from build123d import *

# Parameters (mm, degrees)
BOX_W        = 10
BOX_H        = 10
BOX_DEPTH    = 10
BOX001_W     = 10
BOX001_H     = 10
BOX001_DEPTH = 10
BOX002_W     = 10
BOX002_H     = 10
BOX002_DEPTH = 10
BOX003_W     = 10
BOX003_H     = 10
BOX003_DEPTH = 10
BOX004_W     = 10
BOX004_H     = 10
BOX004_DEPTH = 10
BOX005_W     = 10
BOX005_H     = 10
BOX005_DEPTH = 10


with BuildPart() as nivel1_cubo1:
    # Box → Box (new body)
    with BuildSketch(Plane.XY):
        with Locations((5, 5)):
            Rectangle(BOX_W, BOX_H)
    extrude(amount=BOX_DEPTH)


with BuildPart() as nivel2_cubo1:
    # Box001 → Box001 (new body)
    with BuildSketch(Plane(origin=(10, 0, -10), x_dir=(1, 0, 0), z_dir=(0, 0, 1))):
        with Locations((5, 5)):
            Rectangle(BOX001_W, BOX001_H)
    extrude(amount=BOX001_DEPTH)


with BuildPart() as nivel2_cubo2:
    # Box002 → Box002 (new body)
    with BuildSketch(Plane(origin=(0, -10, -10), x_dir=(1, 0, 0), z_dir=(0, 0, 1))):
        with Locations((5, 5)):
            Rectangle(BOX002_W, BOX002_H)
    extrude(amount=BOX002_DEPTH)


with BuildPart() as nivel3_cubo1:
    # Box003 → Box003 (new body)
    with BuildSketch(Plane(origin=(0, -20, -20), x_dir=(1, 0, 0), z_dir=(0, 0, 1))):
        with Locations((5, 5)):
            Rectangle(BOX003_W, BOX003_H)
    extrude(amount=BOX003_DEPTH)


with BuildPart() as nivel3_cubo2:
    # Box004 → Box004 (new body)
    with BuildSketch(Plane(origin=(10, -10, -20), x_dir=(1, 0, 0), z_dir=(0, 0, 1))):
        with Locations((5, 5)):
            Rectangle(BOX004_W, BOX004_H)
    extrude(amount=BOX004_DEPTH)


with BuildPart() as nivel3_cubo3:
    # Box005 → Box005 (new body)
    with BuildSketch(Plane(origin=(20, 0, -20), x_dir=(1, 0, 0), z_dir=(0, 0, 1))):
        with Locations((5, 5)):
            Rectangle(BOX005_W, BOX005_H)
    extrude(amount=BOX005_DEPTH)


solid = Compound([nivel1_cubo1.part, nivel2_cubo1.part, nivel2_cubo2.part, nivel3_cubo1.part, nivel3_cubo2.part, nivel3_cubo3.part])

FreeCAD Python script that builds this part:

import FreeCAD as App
import Part
import Sketcher

V = App.Vector
Q = App.Units.Quantity

doc = App.newDocument("Part")
body = doc.addObject("PartDesign::Body", "Body")

sketch1 = body.newObject("Sketcher::SketchObject", "Sketch")
sketch1.AttachmentSupport = (doc.getObject("XY_Plane"), [""])
sketch1.MapMode = "FlatFace"
sketch1.addGeometry([
    Part.LineSegment(V(0, 10, 0), V(0, 0, 0)),
    Part.LineSegment(V(0, 0, 0), V(10, 0, 0)),
    Part.LineSegment(V(10, 0, 0), V(10, 10, 0)),
    Part.LineSegment(V(10, 10, 0), V(0, 10, 0)),
], False)
sketch1.addConstraint([
    Sketcher.Constraint("Coincident", 0, 2, 1, 1),
    Sketcher.Constraint("Coincident", 1, 2, 2, 1),
    Sketcher.Constraint("Coincident", 2, 2, 3, 1),
    Sketcher.Constraint("Coincident", 3, 2, 0, 1),
    Sketcher.Constraint("Vertical", 0),
    Sketcher.Constraint("Horizontal", 1),
    Sketcher.Constraint("Vertical", 2),
    Sketcher.Constraint("Horizontal", 3),
    Sketcher.Constraint("Coincident", 0, 2, -1, 1),
    Sketcher.Constraint("Equal", 3, 0),
    Sketcher.Constraint("DistanceX", 1, 1, 1, 2, Q("10 mm")),
])
pad1 = body.newObject("PartDesign::Pad", "Pad")
pad1.Profile = sketch1
pad1.Length = 10
body2 = doc.addObject("PartDesign::Body", "Body001")

sketch2 = body2.newObject("Sketcher::SketchObject", "Sketch001")
sketch2.AttachmentSupport = (doc.getObject("XY_Plane001"), [""])
sketch2.MapMode = "FlatFace"
sketch2.AttachmentOffset = App.Placement(V(0, 0, -10), App.Rotation())
sketch2.addGeometry([
    Part.LineSegment(V(10, 10, 0), V(10, 0, 0)),
    Part.LineSegment(V(10, 0, 0), V(20, 0, 0)),
    Part.LineSegment(V(20, 0, 0), V(20, 10, 0)),
    Part.LineSegment(V(20, 10, 0), V(10, 10, 0)),
], False)
sketch2.addConstraint([
    Sketcher.Constraint("Coincident", 0, 2, 1, 1),
    Sketcher.Constraint("Coincident", 1, 2, 2, 1),
    Sketcher.Constraint("Coincident", 2, 2, 3, 1),
    Sketcher.Constraint("Coincident", 3, 2, 0, 1),
    Sketcher.Constraint("Vertical", 0),
    Sketcher.Constraint("Horizontal", 1),
    Sketcher.Constraint("Vertical", 2),
    Sketcher.Constraint("Horizontal", 3),
    Sketcher.Constraint("PointOnObject", 0, 2, -1),
    Sketcher.Constraint("Equal", 3, 0),
    Sketcher.Constraint("DistanceX", 1, 1, 1, 2, Q("10 mm")),
    Sketcher.Constraint("DistanceX", -1, 1, 0, 2, Q("10 mm")),
])
pad2 = body2.newObject("PartDesign::Pad", "Pad001")
pad2.Profile = sketch2
pad2.Length = 10
body3 = doc.addObject("PartDesign::Body", "Body002")

sketch3 = body3.newObject("Sketcher::SketchObject", "Sketch002")
sketch3.AttachmentSupport = (doc.getObject("XY_Plane002"), [""])
sketch3.MapMode = "FlatFace"
sketch3.AttachmentOffset = App.Placement(V(0, 0, -10), App.Rotation())
sketch3.addGeometry([
    Part.LineSegment(V(0, 0, 0), V(0, -10, 0)),
    Part.LineSegment(V(0, -10, 0), V(10, -10, 0)),
    Part.LineSegment(V(10, -10, 0), V(10, 0, 0)),
    Part.LineSegment(V(10, 0, 0), V(0, 0, 0)),
], False)
sketch3.addConstraint([
    Sketcher.Constraint("Coincident", 0, 2, 1, 1),
    Sketcher.Constraint("Coincident", 1, 2, 2, 1),
    Sketcher.Constraint("Coincident", 2, 2, 3, 1),
    Sketcher.Constraint("Coincident", 3, 2, 0, 1),
    Sketcher.Constraint("Vertical", 0),
    Sketcher.Constraint("Horizontal", 1),
    Sketcher.Constraint("Vertical", 2),
    Sketcher.Constraint("Horizontal", 3),
    Sketcher.Constraint("Coincident", 3, 2, -1, 1),
    Sketcher.Constraint("Equal", 3, 0),
    Sketcher.Constraint("DistanceX", 1, 1, 1, 2, Q("10 mm")),
])
pad3 = body3.newObject("PartDesign::Pad", "Pad002")
pad3.Profile = sketch3
pad3.Length = 10
body4 = doc.addObject("PartDesign::Body", "Body003")

sketch4 = body4.newObject("Sketcher::SketchObject", "Sketch003")
sketch4.AttachmentSupport = (doc.getObject("XY_Plane003"), [""])
sketch4.MapMode = "FlatFace"
sketch4.AttachmentOffset = App.Placement(V(0, 0, -20), App.Rotation())
sketch4.addGeometry([
    Part.LineSegment(V(0, -10, 0), V(0, -20, 0)),
    Part.LineSegment(V(0, -20, 0), V(10, -20, 0)),
    Part.LineSegment(V(10, -20, 0), V(10, -10, 0)),
    Part.LineSegment(V(10, -10, 0), V(0, -10, 0)),
], False)
sketch4.addConstraint([
    Sketcher.Constraint("Coincident", 0, 2, 1, 1),
    Sketcher.Constraint("Coincident", 1, 2, 2, 1),
    Sketcher.Constraint("Coincident", 2, 2, 3, 1),
    Sketcher.Constraint("Coincident", 3, 2, 0, 1),
    Sketcher.Constraint("Vertical", 0),
    Sketcher.Constraint("Horizontal", 1),
    Sketcher.Constraint("Vertical", 2),
    Sketcher.Constraint("Horizontal", 3),
    Sketcher.Constraint("PointOnObject", 0, 2, -2),
    Sketcher.Constraint("Equal", 3, 0),
    Sketcher.Constraint("DistanceX", 1, 1, 1, 2, Q("10 mm")),
    Sketcher.Constraint("DistanceY", 0, 2, -1, 1, Q("20 mm")),
])
pad4 = body4.newObject("PartDesign::Pad", "Pad003")
pad4.Profile = sketch4
pad4.Length = 10
body5 = doc.addObject("PartDesign::Body", "Body004")

sketch5 = body5.newObject("Sketcher::SketchObject", "Sketch004")
sketch5.AttachmentSupport = (doc.getObject("XY_Plane004"), [""])
sketch5.MapMode = "FlatFace"
sketch5.AttachmentOffset = App.Placement(V(0, 0, -20), App.Rotation())
sketch5.addGeometry([
    Part.LineSegment(V(10, 0, 0), V(10, -10, 0)),
    Part.LineSegment(V(10, -10, 0), V(20, -10, 0)),
    Part.LineSegment(V(20, -10, 0), V(20, 0, 0)),
    Part.LineSegment(V(20, 0, 0), V(10, 0, 0)),
], False)
sketch5.addConstraint([
    Sketcher.Constraint("Coincident", 0, 2, 1, 1),
    Sketcher.Constraint("Coincident", 1, 2, 2, 1),
    Sketcher.Constraint("Coincident", 2, 2, 3, 1),
    Sketcher.Constraint("Coincident", 3, 2, 0, 1),
    Sketcher.Constraint("Vertical", 0),
    Sketcher.Constraint("Horizontal", 1),
    Sketcher.Constraint("Vertical", 2),
    Sketcher.Constraint("Horizontal", 3),
    Sketcher.Constraint("PointOnObject", 2, 2, -1),
    Sketcher.Constraint("Equal", 3, 0),
    Sketcher.Constraint("DistanceX", 1, 1, 1, 2, Q("10 mm")),
    Sketcher.Constraint("DistanceX", -1, 1, 0, 2, Q("10 mm")),
])
pad5 = body5.newObject("PartDesign::Pad", "Pad004")
pad5.Profile = sketch5
pad5.Length = 10
body6 = doc.addObject("PartDesign::Body", "Body005")

sketch6 = body6.newObject("Sketcher::SketchObject", "Sketch005")
sketch6.AttachmentSupport = (doc.getObject("XY_Plane005"), [""])
sketch6.MapMode = "FlatFace"
sketch6.AttachmentOffset = App.Placement(V(0, 0, -20), App.Rotation())
sketch6.addGeometry([
    Part.LineSegment(V(20, 10, 0), V(20, 0, 0)),
    Part.LineSegment(V(20, 0, 0), V(30, 0, 0)),
    Part.LineSegment(V(30, 0, 0), V(30, 10, 0)),
    Part.LineSegment(V(30, 10, 0), V(20, 10, 0)),
], False)
sketch6.addConstraint([
    Sketcher.Constraint("Coincident", 0, 2, 1, 1),
    Sketcher.Constraint("Coincident", 1, 2, 2, 1),
    Sketcher.Constraint("Coincident", 2, 2, 3, 1),
    Sketcher.Constraint("Coincident", 3, 2, 0, 1),
    Sketcher.Constraint("Vertical", 0),
    Sketcher.Constraint("Horizontal", 1),
    Sketcher.Constraint("Vertical", 2),
    Sketcher.Constraint("Horizontal", 3),
    Sketcher.Constraint("PointOnObject", 0, 2, -1),
    Sketcher.Constraint("Equal", 3, 0),
    Sketcher.Constraint("DistanceX", 1, 1, 1, 2, Q("10 mm")),
    Sketcher.Constraint("DistanceX", -1, 1, 0, 2, Q("20 mm")),
])
pad6 = body6.newObject("PartDesign::Pad", "Pad005")
pad6.Profile = sketch6
pad6.Length = 10

doc.recompute()
